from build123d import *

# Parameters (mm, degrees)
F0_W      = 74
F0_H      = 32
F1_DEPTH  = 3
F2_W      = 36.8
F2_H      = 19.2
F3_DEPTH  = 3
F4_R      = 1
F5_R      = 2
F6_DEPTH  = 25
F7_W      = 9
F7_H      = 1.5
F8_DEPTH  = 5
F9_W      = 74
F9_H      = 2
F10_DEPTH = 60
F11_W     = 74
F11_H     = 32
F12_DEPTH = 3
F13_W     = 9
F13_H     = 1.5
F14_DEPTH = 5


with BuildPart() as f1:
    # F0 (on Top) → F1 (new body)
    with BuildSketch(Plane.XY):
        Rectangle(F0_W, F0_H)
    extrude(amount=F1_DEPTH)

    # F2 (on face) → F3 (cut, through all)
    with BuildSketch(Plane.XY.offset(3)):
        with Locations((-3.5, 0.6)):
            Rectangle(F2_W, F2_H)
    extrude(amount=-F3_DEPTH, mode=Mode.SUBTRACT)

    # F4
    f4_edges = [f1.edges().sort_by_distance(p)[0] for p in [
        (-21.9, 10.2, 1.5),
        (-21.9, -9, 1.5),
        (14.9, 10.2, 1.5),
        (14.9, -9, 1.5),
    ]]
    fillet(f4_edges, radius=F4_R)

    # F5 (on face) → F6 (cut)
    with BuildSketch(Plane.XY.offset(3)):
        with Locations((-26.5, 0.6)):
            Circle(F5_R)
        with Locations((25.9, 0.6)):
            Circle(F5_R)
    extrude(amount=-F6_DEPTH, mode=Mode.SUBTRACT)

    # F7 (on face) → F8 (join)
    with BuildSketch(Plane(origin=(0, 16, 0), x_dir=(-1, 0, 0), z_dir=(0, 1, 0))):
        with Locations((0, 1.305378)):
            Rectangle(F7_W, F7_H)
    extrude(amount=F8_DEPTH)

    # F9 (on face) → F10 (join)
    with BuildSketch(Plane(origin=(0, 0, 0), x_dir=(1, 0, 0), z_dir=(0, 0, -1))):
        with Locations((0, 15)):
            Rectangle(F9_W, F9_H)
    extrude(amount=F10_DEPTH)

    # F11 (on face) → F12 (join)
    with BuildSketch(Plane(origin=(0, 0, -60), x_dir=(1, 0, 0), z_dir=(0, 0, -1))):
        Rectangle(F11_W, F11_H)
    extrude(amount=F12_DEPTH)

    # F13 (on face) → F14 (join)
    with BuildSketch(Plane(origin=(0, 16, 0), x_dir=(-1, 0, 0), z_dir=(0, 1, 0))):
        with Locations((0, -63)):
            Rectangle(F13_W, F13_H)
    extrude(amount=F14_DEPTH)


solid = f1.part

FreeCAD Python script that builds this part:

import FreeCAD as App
import Part
import Sketcher


def edges_at(feature, points):
    """Names of the edges that pass closest to the given points."""
    edges = feature.Shape.Edges
    near = lambda p: min(range(len(edges)), key=lambda i: edges[i].distToShape(Part.Vertex(*p))[0])
    return sorted({f"Edge{near(p) + 1}" for p in points})

doc = App.newDocument("Part")
body = doc.addObject("PartDesign::Body", "Body")

# Sketch on XY plane
sketch1 = body.newObject("Sketcher::SketchObject", "Sketch")
sketch1.AttachmentSupport = (doc.getObject("XY_Plane"), [""])
sketch1.MapMode = "FlatFace"
sketch1.addGeometry(Part.LineSegment(App.Vector(-37, 16, 0), App.Vector(-37, -16, 0)), False)
sketch1.addGeometry(Part.LineSegment(App.Vector(-37, -16, 0), App.Vector(37, -16, 0)), False)
sketch1.addGeometry(Part.LineSegment(App.Vector(37, -16, 0), App.Vector(37, 16, 0)), False)
sketch1.addGeometry(Part.LineSegment(App.Vector(37, 16, 0), App.Vector(-37, 16, 0)), False)
sketch1.addConstraint(Sketcher.Constraint("Coincident", 0, 2, 1, 1))
sketch1.addConstraint(Sketcher.Constraint("Coincident", 1, 2, 2, 1))
sketch1.addConstraint(Sketcher.Constraint("Coincident", 2, 2, 3, 1))
sketch1.addConstraint(Sketcher.Constraint("Coincident", 3, 2, 0, 1))
sketch1.addConstraint(Sketcher.Constraint("Vertical", 0))
sketch1.addConstraint(Sketcher.Constraint("Horizontal", 1))
sketch1.addConstraint(Sketcher.Constraint("Vertical", 2))
sketch1.addConstraint(Sketcher.Constraint("Horizontal", 3))
sketch1.addConstraint(Sketcher.Constraint("Symmetric", 0, 2, 2, 2, -1, 1))
sketch1.addConstraint(Sketcher.Constraint("DistanceX", 1, 1, 1, 2, 74.0))
sketch1.addConstraint(Sketcher.Constraint("DistanceY", 0, 2, 0, 1, 32.0))
pad1 = body.newObject("PartDesign::Pad", "Pad")
pad1.Profile = sketch1
pad1.Length = 3

# Sketch on XY plane
sketch2 = body.newObject("Sketcher::SketchObject", "Sketch001")
sketch2.AttachmentSupport = (doc.getObject("XY_Plane"), [""])
sketch2.MapMode = "FlatFace"
sketch2.AttachmentOffset = App.Placement(App.Vector(0, 0, 3), App.Rotation())
sketch2.addGeometry(Part.LineSegment(App.Vector(-22, 10, 0), App.Vector(-22, -9, 0)), False)
sketch2.addGeometry(Part.LineSegment(App.Vector(-22, -9, 0), App.Vector(15, -9, 0)), False)
sketch2.addGeometry(Part.LineSegment(App.Vector(15, -9, 0), App.Vector(15, 10, 0)), False)
sketch2.addGeometry(Part.LineSegment(App.Vector(15, 10, 0), App.Vector(-22, 10, 0)), False)
sketch2.addConstraint(Sketcher.Constraint("Coincident", 0, 2, 1, 1))
sketch2.addConstraint(Sketcher.Constraint("Coincident", 1, 2, 2, 1))
sketch2.addConstraint(Sketcher.Constraint("Coincident", 2, 2, 3, 1))
sketch2.addConstraint(Sketcher.Constraint("Coincident", 3, 2, 0, 1))
sketch2.addConstraint(Sketcher.Constraint("Vertical", 0))
sketch2.addConstraint(Sketcher.Constraint("Horizontal", 1))
sketch2.addConstraint(Sketcher.Constraint("Vertical", 2))
sketch2.addConstraint(Sketcher.Constraint("Horizontal", 3))
sketch2.addConstraint(Sketcher.Constraint("DistanceX", 1, 1, 1, 2, 36.8))
sketch2.addConstraint(Sketcher.Constraint("DistanceY", 0, 2, 0, 1, 19.2))
sketch2.addConstraint(Sketcher.Constraint("DistanceY", 0, 2, -1, 1, 9.0))
sketch2.addConstraint(Sketcher.Constraint("DistanceX", 0, 2, -1, 1, 21.9))
pocket1 = body.newObject("PartDesign::Pocket", "Pocket")
pocket1.Profile = sketch2
pocket1.Type = "ThroughAll"
doc.recompute()

fillet = body.newObject("PartDesign::Fillet", "Fillet")
fillet.Base = (pocket1, edges_at(pocket1, [
    (-21.9, 10.2, 1.5),
    (-21.9, -9, 1.5),
    (14.9, 10.2, 1.5),
    (14.9, -9, 1.5),
]))
fillet.Radius = 1

# Sketch on XY plane
sketch3 = body.newObject("Sketcher::SketchObject", "Sketch002")
sketch3.AttachmentSupport = (doc.getObject("XY_Plane"), [""])
sketch3.MapMode = "FlatFace"
sketch3.AttachmentOffset = App.Placement(App.Vector(0, 0, 3), App.Rotation())
sketch3.addGeometry(Part.Circle(App.Vector(-26.5, 0.6, 0), App.Vector(0, 0, 1), 2), False)
sketch3.addGeometry(Part.Circle(App.Vector(25.9, 0.6, 0), App.Vector(0, 0, 1), 2), False)
sketch3.addConstraint(Sketcher.Constraint("Equal", 0, 1))
sketch3.addConstraint(Sketcher.Constraint("Horizontal", 0, 3, 1, 3))
sketch3.addConstraint(Sketcher.Constraint("Diameter", 0, 4.0))
sketch3.addConstraint(Sketcher.Constraint("DistanceX", 0, 3, -1, 1, 26.5))
sketch3.addConstraint(Sketcher.Constraint("DistanceY", -1, 1, 0, 3, 0.6))
sketch3.addConstraint(Sketcher.Constraint("DistanceX", -1, 1, 1, 3, 25.9))
pocket2 = body.newObject("PartDesign::Pocket", "Pocket001")
pocket2.Profile = sketch3
pocket2.Length = 25

# Sketch on XZ plane
sketch4 = body.newObject("Sketcher::SketchObject", "Sketch003")
sketch4.AttachmentSupport = (doc.getObject("XZ_Plane"), [""])
sketch4.MapMode = "FlatFace"
sketch4.AttachmentOffset = App.Placement(App.Vector(0, 0, -16), App.Rotation())
sketch4.addGeometry(Part.LineSegment(App.Vector(4.5, 2.1, 0), App.Vector(4.5, 0.6, 0)), False)
sketch4.addGeometry(Part.LineSegment(App.Vector(4.5, 0.6, 0), App.Vector(-4.5, 0.6, 0)), False)
sketch4.addGeometry(Part.LineSegment(App.Vector(-4.5, 0.6, 0), App.Vector(-4.5, 2.1, 0)), False)
sketch4.addGeometry(Part.LineSegment(App.Vector(-4.5, 2.1, 0), App.Vector(4.5, 2.1, 0)), False)
sketch4.addConstraint(Sketcher.Constraint("Coincident", 0, 2, 1, 1))
sketch4.addConstraint(Sketcher.Constraint("Coincident", 1, 2, 2, 1))
sketch4.addConstraint(Sketcher.Constraint("Coincident", 2, 2, 3, 1))
sketch4.addConstraint(Sketcher.Constraint("Coincident", 3, 2, 0, 1))
sketch4.addConstraint(Sketcher.Constraint("Vertical", 0))
sketch4.addConstraint(Sketcher.Constraint("Horizontal", 1))
sketch4.addConstraint(Sketcher.Constraint("Vertical", 2))
sketch4.addConstraint(Sketcher.Constraint("Horizontal", 3))
sketch4.addConstraint(Sketcher.Constraint("DistanceX", 1, 2, 1, 1, 9.0))
sketch4.addConstraint(Sketcher.Constraint("DistanceY", 0, 2, 0, 1, 1.5))
sketch4.addConstraint(Sketcher.Constraint("DistanceX", -1, 1, 0, 2, 4.5))
sketch4.addConstraint(Sketcher.Constraint("DistanceY", -1, 1, 0, 2, 0.555378))
pad2 = body.newObject("PartDesign::Pad", "Pad001")
pad2.Profile = sketch4
pad2.Length = 5
pad2.Reversed = True

# Sketch on XY plane
sketch5 = body.newObject("Sketcher::SketchObject", "Sketch004")
sketch5.AttachmentSupport = (doc.getObject("XY_Plane"), [""])
sketch5.MapMode = "FlatFace"
sketch5.addGeometry(Part.LineSegment(App.Vector(-37, -16, 0), App.Vector(-37, -14, 0)), False)
sketch5.addGeometry(Part.LineSegment(App.Vector(-37, -14, 0), App.Vector(37, -14, 0)), False)
sketch5.addGeometry(Part.LineSegment(App.Vector(37, -14, 0), App.Vector(37, -16, 0)), False)
sketch5.addGeometry(Part.LineSegment(App.Vector(37, -16, 0), App.Vector(-37, -16, 0)), False)
sketch5.addConstraint(Sketcher.Constraint("Coincident", 0, 2, 1, 1))
sketch5.addConstraint(Sketcher.Constraint("Coincident", 1, 2, 2, 1))
sketch5.addConstraint(Sketcher.Constraint("Coincident", 2, 2, 3, 1))
sketch5.addConstraint(Sketcher.Constraint("Coincident", 3, 2, 0, 1))
sketch5.addConstraint(Sketcher.Constraint("Vertical", 0))
sketch5.addConstraint(Sketcher.Constraint("Horizontal", 1))
sketch5.addConstraint(Sketcher.Constraint("Vertical", 2))
sketch5.addConstraint(Sketcher.Constraint("Horizontal", 3))
sketch5.addConstraint(Sketcher.Constraint("DistanceX", 1, 1, 1, 2, 74.0))
sketch5.addConstraint(Sketcher.Constraint("DistanceY", 0, 1, 0, 2, 2.0))
sketch5.addConstraint(Sketcher.Constraint("DistanceX", 0, 2, -1, 1, 37.0))
sketch5.addConstraint(Sketcher.Constraint("DistanceY", 0, 2, -1, 1, 14.0))
pad3 = body.newObject("PartDesign::Pad", "Pad002")
pad3.Profile = sketch5
pad3.Length = 60
pad3.Reversed = True

# Sketch on XY plane
sketch6 = body.newObject("Sketcher::SketchObject", "Sketch005")
sketch6.AttachmentSupport = (doc.getObject("XY_Plane"), [""])
sketch6.MapMode = "FlatFace"
sketch6.AttachmentOffset = App.Placement(App.Vector(0, 0, -60), App.Rotation())
sketch6.addGeometry(Part.LineSegment(App.Vector(-37, -16, 0), App.Vector(-37, 16, 0)), False)
sketch6.addGeometry(Part.LineSegment(App.Vector(-37, 16, 0), App.Vector(37, 16, 0)), False)
sketch6.addGeometry(Part.LineSegment(App.Vector(37, 16, 0), App.Vector(37, -16, 0)), False)
sketch6.addGeometry(Part.LineSegment(App.Vector(37, -16, 0), App.Vector(-37, -16, 0)), False)
sketch6.addConstraint(Sketcher.Constraint("Coincident", 0, 2, 1, 1))
sketch6.addConstraint(Sketcher.Constraint("Coincident", 1, 2, 2, 1))
sketch6.addConstraint(Sketcher.Constraint("Coincident", 2, 2, 3, 1))
sketch6.addConstraint(Sketcher.Constraint("Coincident", 3, 2, 0, 1))
sketch6.addConstraint(Sketcher.Constraint("Vertical", 0))
sketch6.addConstraint(Sketcher.Constraint("Horizontal", 1))
sketch6.addConstraint(Sketcher.Constraint("Vertical", 2))
sketch6.addConstraint(Sketcher.Constraint("Horizontal", 3))
sketch6.addConstraint(Sketcher.Constraint("Symmetric", 0, 2, 2, 2, -1, 1))
sketch6.addConstraint(Sketcher.Constraint("DistanceX", 1, 1, 1, 2, 74.0))
sketch6.addConstraint(Sketcher.Constraint("DistanceY", 0, 1, 0, 2, 32.0))
pad4 = body.newObject("PartDesign::Pad", "Pad003")
pad4.Profile = sketch6
pad4.Length = 3
pad4.Reversed = True

# Sketch on XZ plane
sketch7 = body.newObject("Sketcher::SketchObject", "Sketch006")
sketch7.AttachmentSupport = (doc.getObject("XZ_Plane"), [""])
sketch7.MapMode = "FlatFace"
sketch7.AttachmentOffset = App.Placement(App.Vector(0, 0, -16), App.Rotation())
sketch7.addGeometry(Part.LineSegment(App.Vector(4.5, -62.2, 0), App.Vector(4.5, -63.8, 0)), False)
sketch7.addGeometry(Part.LineSegment(App.Vector(4.5, -63.8, 0), App.Vector(-4.5, -63.8, 0)), False)
sketch7.addGeometry(Part.LineSegment(App.Vector(-4.5, -63.8, 0), App.Vector(-4.5, -62.2, 0)), False)
sketch7.addGeometry(Part.LineSegment(App.Vector(-4.5, -62.2, 0), App.Vector(4.5, -62.2, 0)), False)
sketch7.addConstraint(Sketcher.Constraint("Coincident", 0, 2, 1, 1))
sketch7.addConstraint(Sketcher.Constraint("Coincident", 1, 2, 2, 1))
sketch7.addConstraint(Sketcher.Constraint("Coincident", 2, 2, 3, 1))
sketch7.addConstraint(Sketcher.Constraint("Coincident", 3, 2, 0, 1))
sketch7.addConstraint(Sketcher.Constraint("Vertical", 0))
sketch7.addConstraint(Sketcher.Constraint("Horizontal", 1))
sketch7.addConstraint(Sketcher.Constraint("Vertical", 2))
sketch7.addConstraint(Sketcher.Constraint("Horizontal", 3))
sketch7.addConstraint(Sketcher.Constraint("DistanceX", 1, 2, 1, 1, 9.0))
sketch7.addConstraint(Sketcher.Constraint("DistanceY", 0, 2, 0, 1, 1.5))
sketch7.addConstraint(Sketcher.Constraint("DistanceX", -1, 1, 0, 2, 4.5))
sketch7.addConstraint(Sketcher.Constraint("DistanceY", 0, 2, -1, 1, 63.75))
pad5 = body.newObject("PartDesign::Pad", "Pad004")
pad5.Profile = sketch7
pad5.Length = 5
pad5.Reversed = True

doc.recompute()
